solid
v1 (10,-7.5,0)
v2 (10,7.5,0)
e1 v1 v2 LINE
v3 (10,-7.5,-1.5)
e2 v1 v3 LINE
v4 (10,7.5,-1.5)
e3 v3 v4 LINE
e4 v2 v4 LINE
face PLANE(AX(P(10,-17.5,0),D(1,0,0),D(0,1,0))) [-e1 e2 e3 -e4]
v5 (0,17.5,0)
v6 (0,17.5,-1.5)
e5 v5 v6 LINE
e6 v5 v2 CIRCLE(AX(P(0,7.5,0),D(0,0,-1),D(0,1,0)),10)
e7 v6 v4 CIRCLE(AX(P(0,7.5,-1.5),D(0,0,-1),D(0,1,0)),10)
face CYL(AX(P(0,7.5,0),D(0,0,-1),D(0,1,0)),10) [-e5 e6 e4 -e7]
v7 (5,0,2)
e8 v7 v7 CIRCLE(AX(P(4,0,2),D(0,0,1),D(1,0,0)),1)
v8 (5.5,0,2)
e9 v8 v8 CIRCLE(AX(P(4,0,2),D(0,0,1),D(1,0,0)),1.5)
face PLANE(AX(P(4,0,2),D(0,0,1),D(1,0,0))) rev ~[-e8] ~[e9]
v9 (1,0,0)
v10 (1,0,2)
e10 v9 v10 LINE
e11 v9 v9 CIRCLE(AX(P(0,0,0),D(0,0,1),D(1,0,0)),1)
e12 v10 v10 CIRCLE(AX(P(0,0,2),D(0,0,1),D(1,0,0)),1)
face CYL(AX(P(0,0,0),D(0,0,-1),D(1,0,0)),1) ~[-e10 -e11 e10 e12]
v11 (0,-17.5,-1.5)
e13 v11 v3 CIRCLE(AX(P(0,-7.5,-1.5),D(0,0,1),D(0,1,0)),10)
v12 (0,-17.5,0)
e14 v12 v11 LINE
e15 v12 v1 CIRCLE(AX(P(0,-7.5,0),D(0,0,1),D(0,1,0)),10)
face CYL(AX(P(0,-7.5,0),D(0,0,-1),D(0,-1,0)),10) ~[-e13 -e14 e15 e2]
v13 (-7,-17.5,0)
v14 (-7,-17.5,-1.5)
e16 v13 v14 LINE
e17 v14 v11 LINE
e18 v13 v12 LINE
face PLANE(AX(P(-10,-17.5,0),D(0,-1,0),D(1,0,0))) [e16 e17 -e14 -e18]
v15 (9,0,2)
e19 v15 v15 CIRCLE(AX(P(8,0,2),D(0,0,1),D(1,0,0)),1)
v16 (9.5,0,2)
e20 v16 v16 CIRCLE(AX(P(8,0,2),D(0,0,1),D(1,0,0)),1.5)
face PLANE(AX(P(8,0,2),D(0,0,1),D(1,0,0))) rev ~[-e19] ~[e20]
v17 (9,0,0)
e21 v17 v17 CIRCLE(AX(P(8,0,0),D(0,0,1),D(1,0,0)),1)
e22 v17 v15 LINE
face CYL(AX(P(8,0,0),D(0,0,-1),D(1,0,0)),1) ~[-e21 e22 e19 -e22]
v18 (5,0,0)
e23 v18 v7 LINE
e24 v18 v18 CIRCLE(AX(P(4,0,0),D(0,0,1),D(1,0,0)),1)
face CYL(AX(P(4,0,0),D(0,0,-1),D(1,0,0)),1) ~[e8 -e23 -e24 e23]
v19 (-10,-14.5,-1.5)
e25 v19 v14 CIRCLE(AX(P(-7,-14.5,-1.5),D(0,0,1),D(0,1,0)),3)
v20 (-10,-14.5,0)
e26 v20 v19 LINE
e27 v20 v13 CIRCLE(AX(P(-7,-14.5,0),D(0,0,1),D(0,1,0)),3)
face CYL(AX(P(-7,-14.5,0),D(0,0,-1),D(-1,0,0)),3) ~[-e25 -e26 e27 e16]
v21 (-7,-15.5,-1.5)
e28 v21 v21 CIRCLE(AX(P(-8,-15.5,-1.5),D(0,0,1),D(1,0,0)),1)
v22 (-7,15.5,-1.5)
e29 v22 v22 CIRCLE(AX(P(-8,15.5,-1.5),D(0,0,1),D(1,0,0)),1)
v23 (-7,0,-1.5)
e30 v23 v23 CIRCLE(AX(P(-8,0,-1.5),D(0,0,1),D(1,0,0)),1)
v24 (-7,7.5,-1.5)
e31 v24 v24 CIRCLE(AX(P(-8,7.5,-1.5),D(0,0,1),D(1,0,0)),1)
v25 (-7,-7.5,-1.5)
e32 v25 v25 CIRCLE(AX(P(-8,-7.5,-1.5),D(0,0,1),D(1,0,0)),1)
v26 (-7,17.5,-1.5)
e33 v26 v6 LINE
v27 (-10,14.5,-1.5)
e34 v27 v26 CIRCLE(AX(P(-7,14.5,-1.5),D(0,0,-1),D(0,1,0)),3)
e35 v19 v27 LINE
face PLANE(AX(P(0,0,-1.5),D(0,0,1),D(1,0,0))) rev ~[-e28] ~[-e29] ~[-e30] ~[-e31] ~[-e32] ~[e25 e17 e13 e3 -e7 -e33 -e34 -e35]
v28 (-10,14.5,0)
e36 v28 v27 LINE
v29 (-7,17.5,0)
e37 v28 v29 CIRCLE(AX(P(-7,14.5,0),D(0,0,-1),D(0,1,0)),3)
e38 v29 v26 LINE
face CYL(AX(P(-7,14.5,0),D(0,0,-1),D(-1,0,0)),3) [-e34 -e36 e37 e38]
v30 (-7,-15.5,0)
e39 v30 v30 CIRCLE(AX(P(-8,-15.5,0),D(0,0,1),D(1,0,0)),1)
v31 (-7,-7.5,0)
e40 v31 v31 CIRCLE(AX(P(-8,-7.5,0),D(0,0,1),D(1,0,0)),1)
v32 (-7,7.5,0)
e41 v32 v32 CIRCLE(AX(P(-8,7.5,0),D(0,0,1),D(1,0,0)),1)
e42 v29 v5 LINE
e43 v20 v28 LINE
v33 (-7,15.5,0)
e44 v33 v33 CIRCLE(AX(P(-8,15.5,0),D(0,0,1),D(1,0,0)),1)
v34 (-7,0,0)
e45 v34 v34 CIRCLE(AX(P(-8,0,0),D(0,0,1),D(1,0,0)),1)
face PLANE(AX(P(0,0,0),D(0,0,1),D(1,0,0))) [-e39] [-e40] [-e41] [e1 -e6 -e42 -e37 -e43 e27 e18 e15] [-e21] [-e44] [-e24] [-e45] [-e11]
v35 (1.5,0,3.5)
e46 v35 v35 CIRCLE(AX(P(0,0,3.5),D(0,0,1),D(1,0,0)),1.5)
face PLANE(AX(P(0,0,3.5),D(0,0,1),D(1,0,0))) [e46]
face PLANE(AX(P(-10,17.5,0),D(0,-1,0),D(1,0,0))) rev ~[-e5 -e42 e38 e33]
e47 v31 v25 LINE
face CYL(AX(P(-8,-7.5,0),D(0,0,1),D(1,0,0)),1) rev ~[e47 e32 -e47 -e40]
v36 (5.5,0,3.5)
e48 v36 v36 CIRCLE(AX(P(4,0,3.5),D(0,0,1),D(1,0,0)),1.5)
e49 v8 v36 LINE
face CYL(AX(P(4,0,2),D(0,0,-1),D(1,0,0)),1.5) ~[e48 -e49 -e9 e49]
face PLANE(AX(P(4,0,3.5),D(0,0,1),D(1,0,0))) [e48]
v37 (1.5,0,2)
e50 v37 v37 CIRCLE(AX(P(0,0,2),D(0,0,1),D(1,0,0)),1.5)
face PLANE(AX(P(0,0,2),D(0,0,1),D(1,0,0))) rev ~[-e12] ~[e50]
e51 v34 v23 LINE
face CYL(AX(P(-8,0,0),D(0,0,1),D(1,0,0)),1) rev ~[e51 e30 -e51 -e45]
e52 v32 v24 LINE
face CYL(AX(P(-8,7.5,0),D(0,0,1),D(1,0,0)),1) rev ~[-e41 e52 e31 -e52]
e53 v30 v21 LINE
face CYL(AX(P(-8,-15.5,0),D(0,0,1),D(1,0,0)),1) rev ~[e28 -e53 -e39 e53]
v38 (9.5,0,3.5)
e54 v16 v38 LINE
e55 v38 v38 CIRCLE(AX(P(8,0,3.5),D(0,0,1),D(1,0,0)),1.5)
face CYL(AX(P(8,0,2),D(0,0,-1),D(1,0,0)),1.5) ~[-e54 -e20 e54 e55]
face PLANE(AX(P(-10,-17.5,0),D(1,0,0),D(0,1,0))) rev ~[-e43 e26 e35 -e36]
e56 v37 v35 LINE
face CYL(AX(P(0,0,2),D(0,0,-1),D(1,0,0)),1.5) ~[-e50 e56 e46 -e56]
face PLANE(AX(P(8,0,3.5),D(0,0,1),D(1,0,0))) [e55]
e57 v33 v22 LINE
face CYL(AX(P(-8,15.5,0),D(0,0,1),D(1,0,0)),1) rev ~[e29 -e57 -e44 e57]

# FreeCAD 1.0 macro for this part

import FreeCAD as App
import Part
import Sketcher
from FreeCAD import Vector


def edges_at(feature, points):
    """Names of the edges that pass closest to the given points."""
    edges = feature.Shape.Edges
    near = lambda p: min(range(len(edges)), key=lambda i: edges[i].distToShape(Part.Vertex(*p))[0])
    return sorted({f"Edge{near(p) + 1}" for p in points})


def add_polygon(sketch, points):
    """Adds a closed chain of lines whose ends are joined by coincident constraints."""
    first, n = sketch.GeometryCount, len(points)
    for a, b in zip(points, points[1:] + points[:1]):
        sketch.addGeometry(Part.LineSegment(App.Vector(*a, 0), App.Vector(*b, 0)), False)
    for i in range(n):
        sketch.addConstraint(Sketcher.Constraint("Coincident", first + i, 2, first + (i + 1) % n, 1))

doc = App.newDocument("Part")
params = doc.addObject("Spreadsheet::Sheet", "Params")
for row, (alias, value) in enumerate([
    ("sketch1_width", "20 mm"),
    ("sketch1_height", "35 mm"),
    ("pad1_length", "1.5 mm"),
    ("sketch2_diameter", "2 mm"),
    ("pocket1_length", "1.5 mm"),
    ("fillet_radius", "3 mm"),
    ("fillet2_radius", "10 mm"),
    ("sketch3_diameter", "2 mm"),
    ("pad2_length", "2 mm"),
    ("sketch4_diameter", "3 mm"),
    ("pad3_length", "1.5 mm"),
], start=1):
    params.set(f"A{row}", alias)
    params.set(f"B{row}", "=" + value)
    params.setAlias(f"B{row}", alias)

body = doc.addObject("PartDesign::Body", "Body")

# Sketch on XY plane
sketch1 = body.newObject("Sketcher::SketchObject", "Sketch")
sketch1.AttachmentSupport = (doc.getObject("XY_Plane"), [""])
sketch1.MapMode = "FlatFace"
add_polygon(sketch1, [(-10, 17.5), (-10, -17.5), (10, -17.5), (10, 17.5)])  # lines 0-3
sketch1.addConstraint(Sketcher.Constraint("Vertical", 0))
sketch1.addConstraint(Sketcher.Constraint("Horizontal", 1))
sketch1.addConstraint(Sketcher.Constraint("Vertical", 2))
sketch1.addConstraint(Sketcher.Constraint("Horizontal", 3))
sketch1.addConstraint(Sketcher.Constraint("Symmetric", 0, 2, 2, 2, -1, 1))
sketch1.addConstraint(Sketcher.Constraint("DistanceX", 1, 1, 1, 2, 20.0))
sketch1.addConstraint(Sketcher.Constraint("DistanceY", 0, 2, 0, 1, 35.0))
sketch1.setExpression("Constraints[9]", "Params.sketch1_width")
sketch1.setExpression("Constraints[10]", "Params.sketch1_height")
pad1 = body.newObject("PartDesign::Pad", "Pad")
pad1.Profile = sketch1
pad1.setExpression("Length", "Params.pad1_length")
pad1.Reversed = True

# Sketch on XY plane
sketch2 = body.newObject("Sketcher::SketchObject", "Sketch001")
sketch2.AttachmentSupport = (doc.getObject("XY_Plane"), [""])
sketch2.MapMode = "FlatFace"
sketch2.addGeometry(Part.Circle(Vector(-8, 15.5, 0), Vector(0, 0, 1), 1), False)
sketch2.addGeometry(Part.Circle(Vector(-8, 7.5, 0), Vector(0, 0, 1), 1), False)
sketch2.addGeometry(Part.Circle(Vector(-8, 0, 0), Vector(0, 0, 1), 1), False)
sketch2.addGeometry(Part.Circle(Vector(-8, -7.5, 0), Vector(0, 0, 1), 1), False)
sketch2.addGeometry(Part.Circle(Vector(-8, -15.5, 0), Vector(0, 0, 1), 1), False)
sketch2.addConstraint(Sketcher.Constraint("Equal", 0, 1))
sketch2.addConstraint(Sketcher.Constraint("Equal", 1, 2))
sketch2.addConstraint(Sketcher.Constraint("Equal", 2, 3))
sketch2.addConstraint(Sketcher.Constraint("Equal", 3, 4))
sketch2.addConstraint(Sketcher.Constraint("Symmetric", 1, 3, 3, 3, -1))
sketch2.addConstraint(Sketcher.Constraint("Symmetric", 0, 3, 4, 3, -1))
sketch2.addConstraint(Sketcher.Constraint("PointOnObject", 2, 3, -1))
sketch2.addConstraint(Sketcher.Constraint("Vertical", 0, 3, 1, 3))
sketch2.addConstraint(Sketcher.Constraint("Vertical", 1, 3, 2, 3))
sketch2.addConstraint(Sketcher.Constraint("Diameter", 0, 2.0))
sketch2.addConstraint(Sketcher.Constraint("DistanceX", 0, 3, -1, 1, 8.0))
sketch2.addConstraint(Sketcher.Constraint("DistanceY", 1, 3, 0, 3, 8.0))
sketch2.addConstraint(Sketcher.Constraint("DistanceY", 3, 3, 1, 3, 15.0))
sketch2.setExpression("Constraints[9]", "Params.sketch2_diameter")
pocket1 = body.newObject("PartDesign::Pocket", "Pocket")
pocket1.Profile = sketch2
pocket1.setExpression("Length", "Params.pocket1_length")
doc.recompute()

fillet = body.newObject("PartDesign::Fillet", "Fillet")
fillet.Base = (pocket1, edges_at(pocket1, [(-10, -17.5, -0.75), (-10, 17.5, -0.75)]))
fillet.setExpression("Radius", "Params.fillet_radius")
doc.recompute()

fillet2 = body.newObject("PartDesign::Fillet", "Fillet001")
fillet2.Base = (fillet, edges_at(fillet, [(10, 17.5, -0.75), (10, -17.5, -0.75)]))
fillet2.setExpression("Radius", "Params.fillet2_radius")

# Sketch on XY plane
sketch3 = body.newObject("Sketcher::SketchObject", "Sketch002")
sketch3.AttachmentSupport = (doc.getObject("XY_Plane"), [""])
sketch3.MapMode = "FlatFace"
sketch3.addGeometry(Part.Circle(Vector(0, 0, 0), Vector(0, 0, 1), 1), False)
sketch3.addGeometry(Part.Circle(Vector(4, 0, 0), Vector(0, 0, 1), 1), False)
sketch3.addGeometry(Part.Circle(Vector(8, 0, 0), Vector(0, 0, 1), 1), False)
sketch3.addConstraint(Sketcher.Constraint("Coincident", 0, 3, -1, 1))
sketch3.addConstraint(Sketcher.Constraint("Equal", 0, 1))
sketch3.addConstraint(Sketcher.Constraint("Equal", 1, 2))
sketch3.addConstraint(Sketcher.Constraint("PointOnObject", 1, 3, -1))
sketch3.addConstraint(Sketcher.Constraint("PointOnObject", 2, 3, -1))
sketch3.addConstraint(Sketcher.Constraint("Diameter", 0, 2.0))
sketch3.addConstraint(Sketcher.Constraint("DistanceX", -1, 1, 1, 3, 4.0))
sketch3.addConstraint(Sketcher.Constraint("DistanceX", -1, 1, 2, 3, 8.0))
sketch3.setExpression("Constraints[5]", "Params.sketch3_diameter")
pad2 = body.newObject("PartDesign::Pad", "Pad001")
pad2.Profile = sketch3
pad2.setExpression("Length", "Params.pad2_length")

# Sketch on XY plane
sketch4 = body.newObject("Sketcher::SketchObject", "Sketch003")
sketch4.AttachmentSupport = (doc.getObject("XY_Plane"), [""])
sketch4.MapMode = "FlatFace"
sketch4.AttachmentOffset = App.Placement(Vector(0, 0, 2), App.Rotation())
sketch4.addGeometry(Part.Circle(Vector(0, 0, 0), Vector(0, 0, 1), 1.5), False)
sketch4.addGeometry(Part.Circle(Vector(4, 0, 0), Vector(0, 0, 1), 1.5), False)
sketch4.addGeometry(Part.Circle(Vector(8, 0, 0), Vector(0, 0, 1), 1.5), False)
sketch4.addConstraint(Sketcher.Constraint("Coincident", 0, 3, -1, 1))
sketch4.addConstraint(Sketcher.Constraint("Equal", 0, 1))
sketch4.addConstraint(Sketcher.Constraint("Equal", 1, 2))
sketch4.addConstraint(Sketcher.Constraint("PointOnObject", 1, 3, -1))
sketch4.addConstraint(Sketcher.Constraint("PointOnObject", 2, 3, -1))
sketch4.addConstraint(Sketcher.Constraint("Diameter", 0, 3.0))
sketch4.addConstraint(Sketcher.Constraint("DistanceX", -1, 1, 1, 3, 4.0))
sketch4.addConstraint(Sketcher.Constraint("DistanceX", -1, 1, 2, 3, 8.0))
sketch4.setExpression("Constraints[5]", "Params.sketch4_diameter")
pad3 = body.newObject("PartDesign::Pad", "Pad002")
pad3.Profile = sketch4
pad3.setExpression("Length", "Params.pad3_length")

doc.recompute()
